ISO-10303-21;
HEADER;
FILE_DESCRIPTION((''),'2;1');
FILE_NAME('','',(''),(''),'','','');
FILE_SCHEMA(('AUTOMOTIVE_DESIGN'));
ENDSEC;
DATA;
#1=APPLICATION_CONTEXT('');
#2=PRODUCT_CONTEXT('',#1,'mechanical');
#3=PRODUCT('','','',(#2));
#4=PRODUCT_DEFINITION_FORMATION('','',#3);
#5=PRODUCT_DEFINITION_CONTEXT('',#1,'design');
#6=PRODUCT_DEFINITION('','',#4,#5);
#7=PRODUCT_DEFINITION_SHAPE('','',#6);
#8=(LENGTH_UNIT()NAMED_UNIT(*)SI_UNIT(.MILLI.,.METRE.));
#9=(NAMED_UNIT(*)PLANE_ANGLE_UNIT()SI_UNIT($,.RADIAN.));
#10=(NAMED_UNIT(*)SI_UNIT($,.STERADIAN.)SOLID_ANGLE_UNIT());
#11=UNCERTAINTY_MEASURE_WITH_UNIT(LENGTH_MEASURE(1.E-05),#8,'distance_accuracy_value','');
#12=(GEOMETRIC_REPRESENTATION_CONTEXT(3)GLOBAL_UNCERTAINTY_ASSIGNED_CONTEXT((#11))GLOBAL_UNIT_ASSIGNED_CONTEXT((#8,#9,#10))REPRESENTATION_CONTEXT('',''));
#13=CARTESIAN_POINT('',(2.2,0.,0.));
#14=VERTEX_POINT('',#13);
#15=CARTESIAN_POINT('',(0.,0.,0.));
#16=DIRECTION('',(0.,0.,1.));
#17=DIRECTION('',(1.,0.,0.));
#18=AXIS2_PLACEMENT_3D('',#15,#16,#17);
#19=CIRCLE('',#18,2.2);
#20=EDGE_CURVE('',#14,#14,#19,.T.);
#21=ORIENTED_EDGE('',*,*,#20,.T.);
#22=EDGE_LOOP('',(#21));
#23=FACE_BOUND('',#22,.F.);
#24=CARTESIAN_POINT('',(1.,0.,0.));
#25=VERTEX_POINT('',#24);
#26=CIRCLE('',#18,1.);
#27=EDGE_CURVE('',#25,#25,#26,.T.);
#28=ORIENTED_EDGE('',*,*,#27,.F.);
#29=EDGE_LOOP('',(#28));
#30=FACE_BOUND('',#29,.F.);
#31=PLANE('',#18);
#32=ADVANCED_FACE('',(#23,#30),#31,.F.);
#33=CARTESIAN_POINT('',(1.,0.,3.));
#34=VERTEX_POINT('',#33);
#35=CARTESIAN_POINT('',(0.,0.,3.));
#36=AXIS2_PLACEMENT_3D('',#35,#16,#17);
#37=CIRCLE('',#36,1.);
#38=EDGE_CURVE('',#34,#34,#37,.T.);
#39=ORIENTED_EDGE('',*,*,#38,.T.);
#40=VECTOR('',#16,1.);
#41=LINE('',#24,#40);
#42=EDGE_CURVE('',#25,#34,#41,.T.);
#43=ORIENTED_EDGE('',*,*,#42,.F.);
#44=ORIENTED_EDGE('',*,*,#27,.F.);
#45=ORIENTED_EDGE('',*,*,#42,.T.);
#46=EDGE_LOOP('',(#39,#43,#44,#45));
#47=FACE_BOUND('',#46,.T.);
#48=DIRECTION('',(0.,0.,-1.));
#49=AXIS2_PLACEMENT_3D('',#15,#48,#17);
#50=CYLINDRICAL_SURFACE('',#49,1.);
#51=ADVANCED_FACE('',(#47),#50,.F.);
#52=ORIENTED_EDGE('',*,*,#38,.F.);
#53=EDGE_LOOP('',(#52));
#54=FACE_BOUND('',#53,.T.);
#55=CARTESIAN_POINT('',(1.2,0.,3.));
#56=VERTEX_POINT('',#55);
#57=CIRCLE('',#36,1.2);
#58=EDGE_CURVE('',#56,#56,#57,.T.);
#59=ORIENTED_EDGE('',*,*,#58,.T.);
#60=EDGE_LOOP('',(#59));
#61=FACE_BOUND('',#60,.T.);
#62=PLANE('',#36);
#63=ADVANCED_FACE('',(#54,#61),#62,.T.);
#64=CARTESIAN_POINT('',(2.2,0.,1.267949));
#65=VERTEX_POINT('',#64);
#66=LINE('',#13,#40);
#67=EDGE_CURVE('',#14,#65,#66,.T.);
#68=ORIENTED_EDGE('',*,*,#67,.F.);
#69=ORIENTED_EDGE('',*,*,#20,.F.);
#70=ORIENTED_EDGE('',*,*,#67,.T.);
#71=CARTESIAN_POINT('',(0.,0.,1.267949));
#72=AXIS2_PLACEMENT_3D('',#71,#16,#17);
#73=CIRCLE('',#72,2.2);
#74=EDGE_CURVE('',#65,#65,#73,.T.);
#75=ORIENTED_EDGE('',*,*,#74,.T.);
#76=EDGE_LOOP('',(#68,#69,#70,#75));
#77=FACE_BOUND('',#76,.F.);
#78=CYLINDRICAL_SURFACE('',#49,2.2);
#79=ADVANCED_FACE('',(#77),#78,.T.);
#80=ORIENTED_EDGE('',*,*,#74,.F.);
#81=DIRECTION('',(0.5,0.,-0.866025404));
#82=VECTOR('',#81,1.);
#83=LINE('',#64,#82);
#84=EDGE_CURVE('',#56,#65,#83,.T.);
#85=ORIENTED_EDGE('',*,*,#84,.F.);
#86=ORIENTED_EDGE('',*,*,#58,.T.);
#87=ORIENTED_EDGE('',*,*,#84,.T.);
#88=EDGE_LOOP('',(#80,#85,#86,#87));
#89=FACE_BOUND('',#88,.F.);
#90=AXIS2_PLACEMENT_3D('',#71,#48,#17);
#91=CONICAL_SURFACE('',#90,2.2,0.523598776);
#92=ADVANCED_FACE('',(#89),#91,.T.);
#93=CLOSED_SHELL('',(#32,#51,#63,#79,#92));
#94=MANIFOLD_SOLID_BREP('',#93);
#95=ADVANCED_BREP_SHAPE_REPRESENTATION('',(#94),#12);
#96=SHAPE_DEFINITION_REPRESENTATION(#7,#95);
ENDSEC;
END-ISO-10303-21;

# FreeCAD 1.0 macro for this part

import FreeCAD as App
import Part
import Sketcher
from FreeCAD import Vector
Q = App.Units.Quantity


def edges_at(feature, points):
    """Names of the edges that pass closest to the given points."""
    edges = feature.Shape.Edges
    near = lambda p: min(range(len(edges)), key=lambda i: edges[i].distToShape(Part.Vertex(*p))[0])
    return sorted({f"Edge{near(p) + 1}" for p in points})

doc = App.newDocument("Part")
body = doc.addObject("PartDesign::Body", "Body")

sketch1 = body.newObject("Sketcher::SketchObject", "Sketch")
sketch1.AttachmentSupport = (doc.getObject("XY_Plane"), [""])
sketch1.MapMode = "FlatFace"
sketch1.addGeometry(Part.Circle(Vector(0, 0, 0), Vector(0, 0, 1), 2.2), False)
sketch1.addGeometry(Part.Circle(Vector(0, 0, 0), Vector(0, 0, 1), 1), False)
sketch1.addConstraint(Sketcher.Constraint("Coincident", 0, 3, -1, 1))
sketch1.addConstraint(Sketcher.Constraint("Coincident", 1, 3, -1, 1))
sketch1.addConstraint(Sketcher.Constraint("Diameter", 1, Q("2 mm")))
sketch1.addConstraint(Sketcher.Constraint("Diameter", 0, Q("4.4 mm")))
pad1 = body.newObject("PartDesign::Pad", "Pad")
pad1.Profile = sketch1
pad1.Length = 3
doc.recompute()

chamfer = body.newObject("PartDesign::Chamfer", "Chamfer")
chamfer.Base = (pad1, edges_at(pad1, [(-2.2, 0, 3)]))
chamfer.ChamferType = "Two distances"
chamfer.Size = 1
chamfer.Size2 = 1.732051
chamfer.FlipDirection = True

doc.recompute()
